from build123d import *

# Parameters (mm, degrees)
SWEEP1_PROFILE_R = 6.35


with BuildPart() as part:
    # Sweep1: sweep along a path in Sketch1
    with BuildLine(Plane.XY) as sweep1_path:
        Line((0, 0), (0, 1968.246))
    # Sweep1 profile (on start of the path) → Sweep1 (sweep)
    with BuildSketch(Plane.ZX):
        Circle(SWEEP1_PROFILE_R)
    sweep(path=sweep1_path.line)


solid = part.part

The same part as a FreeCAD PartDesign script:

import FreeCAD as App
import Part
import Sketcher
from FreeCAD import Vector
Q = App.Units.Quantity

doc = App.newDocument("Part")
body = doc.addObject("PartDesign::Body", "Body")

# Sketch on XZ plane
sketch1 = doc.addObject("Sketcher::SketchObject", "Sketch")
body.addObject(sketch1)
sketch1.AttachmentSupport = (doc.XZ_Plane, [""])
sketch1.MapMode = "FlatFace"
sketch1.addGeometry(Part.Circle(Vector(0, 0, 0), Vector(0, 0, 1), 6.35), False)
sketch1.addConstraint([
    Sketcher.Constraint("Coincident", 0, 3, -1, 1),
    Sketcher.Constraint("Diameter", 0, Q("0.5 in")),
])

# Sketch on XY plane
sketch2 = doc.addObject("Sketcher::SketchObject", "Sketch001")
body.addObject(sketch2)
sketch2.AttachmentSupport = (doc.XY_Plane, [""])
sketch2.MapMode = "FlatFace"
sketch2.addGeometry(Part.LineSegment(Vector(0, 0, 0), Vector(0, 1968.246, 0)), False)
sketch2.addConstraint([
    Sketcher.Constraint("Vertical", 0),
    Sketcher.Constraint("Coincident", 0, 1, -1, 1),
    Sketcher.Constraint("DistanceY", 0, 1, 0, 2, Q("77.49 in")),
])
doc.recompute()

additivepipe = doc.addObject("PartDesign::AdditivePipe", "AdditivePipe")
body.addObject(additivepipe)
additivepipe.Profile = sketch1
additivepipe.Spine = (sketch2, ["Edge1"])

doc.recompute()
